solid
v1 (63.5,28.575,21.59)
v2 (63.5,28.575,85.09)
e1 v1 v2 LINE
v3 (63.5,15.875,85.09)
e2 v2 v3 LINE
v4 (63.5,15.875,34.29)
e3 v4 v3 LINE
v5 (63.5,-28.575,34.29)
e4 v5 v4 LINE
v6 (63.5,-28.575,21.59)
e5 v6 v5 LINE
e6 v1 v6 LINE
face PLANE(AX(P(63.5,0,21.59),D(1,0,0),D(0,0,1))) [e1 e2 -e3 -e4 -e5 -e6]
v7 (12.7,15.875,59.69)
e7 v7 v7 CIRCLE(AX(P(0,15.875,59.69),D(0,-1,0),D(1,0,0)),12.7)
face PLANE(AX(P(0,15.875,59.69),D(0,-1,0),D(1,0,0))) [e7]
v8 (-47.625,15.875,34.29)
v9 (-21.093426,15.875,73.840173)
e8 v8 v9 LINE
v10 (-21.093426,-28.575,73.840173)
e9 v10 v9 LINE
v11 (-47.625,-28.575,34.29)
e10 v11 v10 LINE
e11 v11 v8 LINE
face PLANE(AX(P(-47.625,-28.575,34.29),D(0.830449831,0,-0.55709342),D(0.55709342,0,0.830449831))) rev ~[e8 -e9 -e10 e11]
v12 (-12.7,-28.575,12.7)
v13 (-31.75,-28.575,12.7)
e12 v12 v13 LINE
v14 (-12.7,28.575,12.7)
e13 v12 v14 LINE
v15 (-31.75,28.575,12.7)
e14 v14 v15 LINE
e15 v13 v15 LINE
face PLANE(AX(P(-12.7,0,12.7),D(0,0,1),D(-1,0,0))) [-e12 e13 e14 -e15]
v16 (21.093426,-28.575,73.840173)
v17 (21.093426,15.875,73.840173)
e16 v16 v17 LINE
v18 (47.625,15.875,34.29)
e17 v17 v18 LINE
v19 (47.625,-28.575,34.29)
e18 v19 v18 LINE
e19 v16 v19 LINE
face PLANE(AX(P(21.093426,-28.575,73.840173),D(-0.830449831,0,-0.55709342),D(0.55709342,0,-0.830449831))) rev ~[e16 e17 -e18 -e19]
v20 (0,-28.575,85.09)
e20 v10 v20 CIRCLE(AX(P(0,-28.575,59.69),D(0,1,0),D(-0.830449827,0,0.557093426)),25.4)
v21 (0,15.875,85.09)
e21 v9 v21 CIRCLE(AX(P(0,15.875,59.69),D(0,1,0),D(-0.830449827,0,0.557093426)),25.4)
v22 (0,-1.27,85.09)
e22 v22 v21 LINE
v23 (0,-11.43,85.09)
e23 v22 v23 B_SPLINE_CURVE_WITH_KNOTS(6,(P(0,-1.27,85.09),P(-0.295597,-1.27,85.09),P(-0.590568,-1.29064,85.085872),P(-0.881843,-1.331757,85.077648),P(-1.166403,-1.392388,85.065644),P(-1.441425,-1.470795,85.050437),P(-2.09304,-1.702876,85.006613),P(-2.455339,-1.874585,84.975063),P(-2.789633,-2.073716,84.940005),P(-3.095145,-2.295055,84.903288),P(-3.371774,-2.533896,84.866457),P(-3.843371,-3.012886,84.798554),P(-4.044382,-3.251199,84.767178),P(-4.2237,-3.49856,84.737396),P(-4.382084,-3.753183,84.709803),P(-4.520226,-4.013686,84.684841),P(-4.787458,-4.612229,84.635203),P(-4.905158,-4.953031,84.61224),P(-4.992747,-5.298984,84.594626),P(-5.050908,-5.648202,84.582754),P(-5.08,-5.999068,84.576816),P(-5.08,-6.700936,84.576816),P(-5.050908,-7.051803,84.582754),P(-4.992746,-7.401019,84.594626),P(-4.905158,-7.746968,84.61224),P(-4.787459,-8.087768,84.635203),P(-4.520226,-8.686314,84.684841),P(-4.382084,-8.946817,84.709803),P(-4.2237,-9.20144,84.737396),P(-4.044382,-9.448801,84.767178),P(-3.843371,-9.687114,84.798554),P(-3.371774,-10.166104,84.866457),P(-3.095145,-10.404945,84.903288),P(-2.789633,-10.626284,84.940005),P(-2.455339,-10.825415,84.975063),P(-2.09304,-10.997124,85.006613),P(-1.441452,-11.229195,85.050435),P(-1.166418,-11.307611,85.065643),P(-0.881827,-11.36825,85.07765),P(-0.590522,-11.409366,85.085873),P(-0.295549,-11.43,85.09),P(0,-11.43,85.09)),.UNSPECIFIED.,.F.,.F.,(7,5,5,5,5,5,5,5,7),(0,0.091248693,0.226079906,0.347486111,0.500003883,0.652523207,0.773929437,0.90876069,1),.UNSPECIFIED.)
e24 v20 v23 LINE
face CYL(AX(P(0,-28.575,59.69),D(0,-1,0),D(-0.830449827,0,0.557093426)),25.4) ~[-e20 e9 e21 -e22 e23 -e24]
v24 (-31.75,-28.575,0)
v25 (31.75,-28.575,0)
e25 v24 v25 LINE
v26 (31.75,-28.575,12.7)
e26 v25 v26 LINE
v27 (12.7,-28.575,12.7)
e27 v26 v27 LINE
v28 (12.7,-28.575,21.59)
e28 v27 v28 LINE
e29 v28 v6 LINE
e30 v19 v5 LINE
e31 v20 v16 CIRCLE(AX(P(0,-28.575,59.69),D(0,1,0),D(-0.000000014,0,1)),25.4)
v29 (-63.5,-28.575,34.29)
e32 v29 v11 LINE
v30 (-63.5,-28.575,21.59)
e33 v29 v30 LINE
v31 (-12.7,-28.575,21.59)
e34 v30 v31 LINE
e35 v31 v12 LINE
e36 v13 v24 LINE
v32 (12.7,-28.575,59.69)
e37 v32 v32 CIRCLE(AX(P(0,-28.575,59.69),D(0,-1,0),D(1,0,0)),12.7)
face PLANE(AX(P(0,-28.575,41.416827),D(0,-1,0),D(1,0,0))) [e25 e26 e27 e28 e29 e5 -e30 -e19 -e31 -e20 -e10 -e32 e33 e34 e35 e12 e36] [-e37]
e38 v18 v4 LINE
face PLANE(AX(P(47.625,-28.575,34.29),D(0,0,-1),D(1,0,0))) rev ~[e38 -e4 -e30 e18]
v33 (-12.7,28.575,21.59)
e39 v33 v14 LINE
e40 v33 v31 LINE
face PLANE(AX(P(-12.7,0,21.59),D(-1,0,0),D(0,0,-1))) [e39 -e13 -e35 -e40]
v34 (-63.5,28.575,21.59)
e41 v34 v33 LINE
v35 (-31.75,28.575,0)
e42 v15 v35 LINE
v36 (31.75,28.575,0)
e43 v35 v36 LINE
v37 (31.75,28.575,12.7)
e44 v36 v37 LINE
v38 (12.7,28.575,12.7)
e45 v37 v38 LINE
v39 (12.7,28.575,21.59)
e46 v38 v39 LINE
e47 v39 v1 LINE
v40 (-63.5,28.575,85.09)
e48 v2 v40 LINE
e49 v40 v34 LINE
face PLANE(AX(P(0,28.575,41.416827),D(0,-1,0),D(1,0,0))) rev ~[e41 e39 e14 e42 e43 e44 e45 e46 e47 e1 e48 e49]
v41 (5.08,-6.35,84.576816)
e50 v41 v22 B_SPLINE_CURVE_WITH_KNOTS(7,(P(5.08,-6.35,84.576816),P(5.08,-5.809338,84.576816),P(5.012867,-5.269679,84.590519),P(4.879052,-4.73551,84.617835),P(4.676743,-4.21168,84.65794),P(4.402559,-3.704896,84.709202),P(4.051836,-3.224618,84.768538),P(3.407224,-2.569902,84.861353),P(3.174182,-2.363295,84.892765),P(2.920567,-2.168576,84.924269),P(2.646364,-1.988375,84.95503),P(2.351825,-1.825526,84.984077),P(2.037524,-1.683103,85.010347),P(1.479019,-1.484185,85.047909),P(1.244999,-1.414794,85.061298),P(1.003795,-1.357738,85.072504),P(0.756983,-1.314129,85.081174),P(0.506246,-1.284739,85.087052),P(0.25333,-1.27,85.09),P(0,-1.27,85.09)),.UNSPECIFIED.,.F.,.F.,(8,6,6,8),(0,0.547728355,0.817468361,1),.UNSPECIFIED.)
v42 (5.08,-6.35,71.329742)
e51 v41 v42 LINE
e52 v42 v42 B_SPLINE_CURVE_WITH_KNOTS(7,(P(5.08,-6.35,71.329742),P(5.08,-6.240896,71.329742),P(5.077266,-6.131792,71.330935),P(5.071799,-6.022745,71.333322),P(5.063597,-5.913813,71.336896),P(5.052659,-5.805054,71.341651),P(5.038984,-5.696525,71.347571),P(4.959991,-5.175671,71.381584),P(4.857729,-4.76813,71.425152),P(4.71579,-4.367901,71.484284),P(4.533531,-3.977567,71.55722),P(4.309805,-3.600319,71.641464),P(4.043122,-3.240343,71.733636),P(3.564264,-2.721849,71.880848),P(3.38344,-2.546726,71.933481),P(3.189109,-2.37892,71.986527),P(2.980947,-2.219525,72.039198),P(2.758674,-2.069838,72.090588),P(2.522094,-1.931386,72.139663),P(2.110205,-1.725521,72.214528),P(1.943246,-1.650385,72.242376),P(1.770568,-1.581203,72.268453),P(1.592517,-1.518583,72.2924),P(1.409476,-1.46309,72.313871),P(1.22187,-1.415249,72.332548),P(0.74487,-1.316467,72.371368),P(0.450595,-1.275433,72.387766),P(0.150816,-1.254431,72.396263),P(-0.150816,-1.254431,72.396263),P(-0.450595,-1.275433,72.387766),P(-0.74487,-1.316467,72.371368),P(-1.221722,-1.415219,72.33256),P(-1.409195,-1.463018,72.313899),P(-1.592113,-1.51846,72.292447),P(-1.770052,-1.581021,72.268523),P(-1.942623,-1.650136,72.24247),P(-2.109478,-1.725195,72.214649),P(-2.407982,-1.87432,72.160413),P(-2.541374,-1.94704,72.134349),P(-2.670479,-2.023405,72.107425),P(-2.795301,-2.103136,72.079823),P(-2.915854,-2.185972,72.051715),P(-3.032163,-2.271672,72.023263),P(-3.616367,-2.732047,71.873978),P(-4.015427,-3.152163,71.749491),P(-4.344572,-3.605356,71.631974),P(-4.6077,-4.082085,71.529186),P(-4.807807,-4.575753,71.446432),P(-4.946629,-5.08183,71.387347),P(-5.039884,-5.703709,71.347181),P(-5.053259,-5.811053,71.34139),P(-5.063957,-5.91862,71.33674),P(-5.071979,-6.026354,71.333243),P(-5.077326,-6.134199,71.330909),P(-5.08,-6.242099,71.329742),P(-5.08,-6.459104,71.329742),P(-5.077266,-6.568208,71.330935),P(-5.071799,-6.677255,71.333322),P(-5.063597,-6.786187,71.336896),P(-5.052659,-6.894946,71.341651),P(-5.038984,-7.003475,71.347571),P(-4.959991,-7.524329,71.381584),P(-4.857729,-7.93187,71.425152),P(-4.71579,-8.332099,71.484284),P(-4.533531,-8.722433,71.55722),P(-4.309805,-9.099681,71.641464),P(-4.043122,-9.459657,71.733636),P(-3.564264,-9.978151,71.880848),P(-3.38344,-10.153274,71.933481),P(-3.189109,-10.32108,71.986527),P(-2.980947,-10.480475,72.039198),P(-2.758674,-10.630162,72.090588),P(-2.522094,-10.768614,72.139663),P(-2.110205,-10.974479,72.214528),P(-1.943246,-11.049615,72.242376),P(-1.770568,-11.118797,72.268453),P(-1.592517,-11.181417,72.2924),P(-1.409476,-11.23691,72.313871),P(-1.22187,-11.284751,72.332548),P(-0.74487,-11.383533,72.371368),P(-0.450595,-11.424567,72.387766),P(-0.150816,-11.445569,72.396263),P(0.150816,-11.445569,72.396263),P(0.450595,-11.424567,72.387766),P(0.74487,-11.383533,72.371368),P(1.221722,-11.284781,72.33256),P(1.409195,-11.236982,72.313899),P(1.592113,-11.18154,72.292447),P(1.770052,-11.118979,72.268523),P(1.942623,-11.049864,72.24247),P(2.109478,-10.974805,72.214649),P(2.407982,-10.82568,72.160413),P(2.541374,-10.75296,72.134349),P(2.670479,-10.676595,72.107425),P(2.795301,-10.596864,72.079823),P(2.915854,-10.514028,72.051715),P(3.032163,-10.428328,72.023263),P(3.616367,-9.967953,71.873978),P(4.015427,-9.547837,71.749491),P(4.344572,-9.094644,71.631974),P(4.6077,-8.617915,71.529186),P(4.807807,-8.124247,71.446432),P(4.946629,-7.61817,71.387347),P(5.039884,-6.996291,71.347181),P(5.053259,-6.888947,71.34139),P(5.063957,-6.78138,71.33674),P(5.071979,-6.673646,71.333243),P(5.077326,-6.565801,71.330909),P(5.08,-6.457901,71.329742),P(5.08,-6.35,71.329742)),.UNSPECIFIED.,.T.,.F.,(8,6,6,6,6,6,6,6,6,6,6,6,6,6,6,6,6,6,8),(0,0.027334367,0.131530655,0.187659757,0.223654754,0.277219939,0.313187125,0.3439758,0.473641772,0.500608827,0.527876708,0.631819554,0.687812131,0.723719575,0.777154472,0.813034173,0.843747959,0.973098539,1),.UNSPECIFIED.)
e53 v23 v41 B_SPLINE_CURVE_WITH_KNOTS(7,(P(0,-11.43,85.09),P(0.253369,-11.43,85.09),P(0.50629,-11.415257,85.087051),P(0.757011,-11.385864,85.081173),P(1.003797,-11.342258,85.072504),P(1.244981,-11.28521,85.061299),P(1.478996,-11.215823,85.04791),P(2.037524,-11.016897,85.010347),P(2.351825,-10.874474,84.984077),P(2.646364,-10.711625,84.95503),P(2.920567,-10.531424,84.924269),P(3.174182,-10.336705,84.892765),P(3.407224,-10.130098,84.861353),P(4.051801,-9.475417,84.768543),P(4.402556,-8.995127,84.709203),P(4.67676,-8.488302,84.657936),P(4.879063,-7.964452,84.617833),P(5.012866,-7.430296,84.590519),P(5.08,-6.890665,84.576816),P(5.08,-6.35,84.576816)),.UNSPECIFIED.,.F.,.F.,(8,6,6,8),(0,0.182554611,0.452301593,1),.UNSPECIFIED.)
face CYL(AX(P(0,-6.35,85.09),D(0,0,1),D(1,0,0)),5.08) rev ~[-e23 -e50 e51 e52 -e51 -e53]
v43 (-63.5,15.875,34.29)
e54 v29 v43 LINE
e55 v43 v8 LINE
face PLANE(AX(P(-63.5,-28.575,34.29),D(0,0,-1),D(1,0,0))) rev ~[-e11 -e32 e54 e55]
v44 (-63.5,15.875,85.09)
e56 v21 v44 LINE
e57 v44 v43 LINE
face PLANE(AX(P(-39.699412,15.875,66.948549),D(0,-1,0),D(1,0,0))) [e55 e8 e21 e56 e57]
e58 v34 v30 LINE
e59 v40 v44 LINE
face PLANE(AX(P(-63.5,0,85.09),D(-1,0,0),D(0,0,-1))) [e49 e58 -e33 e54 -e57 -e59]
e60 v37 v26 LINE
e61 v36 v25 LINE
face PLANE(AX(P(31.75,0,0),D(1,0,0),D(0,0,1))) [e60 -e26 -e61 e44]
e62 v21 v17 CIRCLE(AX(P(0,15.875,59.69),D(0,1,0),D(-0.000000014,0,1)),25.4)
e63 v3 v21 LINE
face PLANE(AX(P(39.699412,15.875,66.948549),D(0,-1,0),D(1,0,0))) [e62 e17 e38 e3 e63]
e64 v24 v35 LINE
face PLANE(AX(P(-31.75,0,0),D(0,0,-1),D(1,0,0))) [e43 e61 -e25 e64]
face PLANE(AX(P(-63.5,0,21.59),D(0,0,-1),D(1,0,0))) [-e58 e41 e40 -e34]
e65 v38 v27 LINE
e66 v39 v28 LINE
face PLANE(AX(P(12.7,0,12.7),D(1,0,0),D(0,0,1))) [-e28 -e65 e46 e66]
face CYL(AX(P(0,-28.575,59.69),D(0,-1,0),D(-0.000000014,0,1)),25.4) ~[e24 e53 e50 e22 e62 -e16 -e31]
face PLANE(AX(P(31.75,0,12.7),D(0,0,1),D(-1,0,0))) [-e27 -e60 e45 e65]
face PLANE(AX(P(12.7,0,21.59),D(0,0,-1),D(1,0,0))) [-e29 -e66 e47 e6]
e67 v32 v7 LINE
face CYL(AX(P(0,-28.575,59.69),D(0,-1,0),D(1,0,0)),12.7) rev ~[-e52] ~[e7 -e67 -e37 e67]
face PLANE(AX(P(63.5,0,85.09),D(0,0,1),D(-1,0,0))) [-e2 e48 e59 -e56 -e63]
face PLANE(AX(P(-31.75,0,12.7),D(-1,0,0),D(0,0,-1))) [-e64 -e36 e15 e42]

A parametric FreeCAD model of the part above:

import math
import FreeCAD as App
import Part
import Sketcher

V = App.Vector
Q = App.Units.Quantity


def add_polygon(sketch, points):
    """Adds a closed chain of lines whose ends are joined by coincident constraints."""
    first, n = sketch.GeometryCount, len(points)
    for a, b in zip(points, points[1:] + points[:1]):
        sketch.addGeometry(Part.LineSegment(App.Vector(*a, 0), App.Vector(*b, 0)), False)
    for i in range(n):
        sketch.addConstraint(Sketcher.Constraint("Coincident", first + i, 2, first + (i + 1) % n, 1))

doc = App.newDocument("Part")
body = doc.addObject("PartDesign::Body", "Body")

# Sketch on XZ plane
sketch1 = body.newObject("Sketcher::SketchObject", "Sketch")
sketch1.AttachmentSupport = (doc.getObject("XZ_Plane"), [""])
sketch1.MapMode = "FlatFace"
add_polygon(sketch1, [(-32, 0), (32, 0), (32, 13), (13, 13), (13, 22), (64, 22), (64, 85), (-64, 85), (-64, 22), (-13, 22), (-13, 13), (-32, 13)])  # lines 0-11
sketch1.addConstraint([
    Sketcher.Constraint("Horizontal", 0),
    Sketcher.Constraint("Vertical", 1),
    Sketcher.Constraint("Horizontal", 2),
    Sketcher.Constraint("Vertical", 3),
    Sketcher.Constraint("Horizontal", 4),
    Sketcher.Constraint("Vertical", 5),
    Sketcher.Constraint("Horizontal", 6),
    Sketcher.Constraint("Vertical", 7),
    Sketcher.Constraint("Horizontal", 8),
    Sketcher.Constraint("Vertical", 9),
    Sketcher.Constraint("Horizontal", 10),
    Sketcher.Constraint("Vertical", 11),
    Sketcher.Constraint("Symmetric", 0, 2, 11, 2, -1, 1),
    Sketcher.Constraint("Symmetric", 4, 2, 7, 2, -2),
    Sketcher.Constraint("Symmetric", 2, 2, 9, 2, -2),
    Sketcher.Constraint("Equal", 0, 5),
    Sketcher.Constraint("DistanceX", 4, 1, 4, 2, Q("2 in")),
    Sketcher.Constraint("DistanceX", 6, 2, 6, 1, Q("5 in")),
    Sketcher.Constraint("DistanceX", 0, 1, 0, 2, Q("2.5 in")),
    Sketcher.Constraint("DistanceY", 1, 1, 1, 2, Q("0.5 in")),
    Sketcher.Constraint("DistanceY", 3, 1, 3, 2, Q("0.35 in")),
])
pad1 = body.newObject("PartDesign::Pad", "Pad")
pad1.Profile = sketch1
pad1.Length = Q("2.25 in")
pad1.Midplane = True

# Sketch on XZ plane
sketch2 = body.newObject("Sketcher::SketchObject", "Sketch001")
sketch2.AttachmentSupport = (doc.getObject("XZ_Plane"), [""])
sketch2.MapMode = "FlatFace"
sketch2.AttachmentOffset = App.Placement(V(0, 0, 1.125 * 25.4), App.Rotation())
sketch2.addGeometry([
    Part.LineSegment(V(-64, 85, 0), V(-64, 34, 0)),  # 0
    Part.LineSegment(V(-64, 34, 0), V(-48, 34, 0)),  # 1
    Part.LineSegment(V(-48, 34, 0), V(-21, 74, 0)),  # 2
    Part.ArcOfCircle(Part.Circle(V(0, 60, 0), V(0, 0, 1), 25), math.radians(90), math.radians(146)),  # 3
    Part.LineSegment(V(0, 85, 0), V(-64, 85, 0)),  # 4
    Part.LineSegment(V(48, 34, 0), V(64, 34, 0)),  # 5
    Part.LineSegment(V(64, 34, 0), V(64, 85, 0)),  # 6
    Part.LineSegment(V(64, 85, 0), V(0, 85, 0)),  # 7
    Part.ArcOfCircle(Part.Circle(V(0, 60, 0), V(0, 0, 1), 25), math.radians(34), math.radians(90)),  # 8
    Part.LineSegment(V(21, 74, 0), V(48, 34, 0)),  # 9
], False)
sketch2.addConstraint([
    Sketcher.Constraint("Coincident", 0, 2, 1, 1),
    Sketcher.Constraint("Coincident", 1, 2, 2, 1),
    Sketcher.Constraint("Tangent", 2, 2, 3, 2),
    Sketcher.Constraint("Tangent", 3, 1, 4, 1),
    Sketcher.Constraint("Coincident", 4, 2, 0, 1),
    Sketcher.Constraint("Coincident", 5, 2, 6, 1),
    Sketcher.Constraint("Coincident", 6, 2, 7, 1),
    Sketcher.Constraint("Tangent", 7, 2, 8, 2),
    Sketcher.Constraint("Tangent", 8, 1, 9, 1),
    Sketcher.Constraint("Coincident", 9, 2, 5, 1),
    Sketcher.Constraint("Vertical", 0),
    Sketcher.Constraint("Horizontal", 1),
    Sketcher.Constraint("Horizontal", 4),
    Sketcher.Constraint("Horizontal", 5),
    Sketcher.Constraint("Vertical", 6),
    Sketcher.Constraint("Horizontal", 7),
    Sketcher.Constraint("Coincident", 8, 3, 3, 3),
    Sketcher.Constraint("Equal", 3, 8),
    Sketcher.Constraint("Symmetric", 0, 2, 5, 2, -2),
    Sketcher.Constraint("Symmetric", 2, 2, 8, 1, -2),
    Sketcher.Constraint("Radius", 3, Q("1 in")),
    Sketcher.Constraint("DistanceY", 0, 2, 0, 1, Q("2 in")),
    Sketcher.Constraint("DistanceX", 4, 2, 4, 1, Q("2.5 in")),
    Sketcher.Constraint("DistanceX", 1, 1, 1, 2, Q("0.625 in")),
    Sketcher.Constraint("DistanceY", -1, 1, 3, 3, Q("2.35 in")),
])
pocket1 = body.newObject("PartDesign::Pocket", "Pocket")
pocket1.Profile = sketch2
pocket1.Length = Q("1.75 in")

# Sketch on XZ plane
sketch3 = body.newObject("Sketcher::SketchObject", "Sketch002")
sketch3.AttachmentSupport = (doc.getObject("XZ_Plane"), [""])
sketch3.MapMode = "FlatFace"
sketch3.AttachmentOffset = App.Placement(V(0, 0, 1.125 * 25.4), App.Rotation())
sketch3.addGeometry(Part.Circle(V(0, 60, 0), V(0, 0, 1), 13), False)
sketch3.addConstraint([
    Sketcher.Constraint("PointOnObject", 0, 3, -2),
    Sketcher.Constraint("Diameter", 0, Q("1 in")),
    Sketcher.Constraint("DistanceY", -1, 1, 0, 3, Q("2.35 in")),
])
pocket2 = body.newObject("PartDesign::Pocket", "Pocket001")
pocket2.Profile = sketch3
pocket2.Length = Q("1.75 in")

# Sketch on XY plane
sketch4 = body.newObject("Sketcher::SketchObject", "Sketch003")
sketch4.AttachmentSupport = (doc.getObject("XY_Plane"), [""])
sketch4.MapMode = "FlatFace"
sketch4.AttachmentOffset = App.Placement(V(0, 0, 3.35 * 25.4), App.Rotation())
sketch4.addGeometry(Part.Circle(V(0, -6, 0), V(0, 0, 1), 5), False)
sketch4.addConstraint([
    Sketcher.Constraint("PointOnObject", 0, 3, -2),
    Sketcher.Constraint("Diameter", 0, Q("0.4 in")),
    Sketcher.Constraint("DistanceY", 0, 3, -1, 1, Q("0.25 in")),
])
pocket3 = body.newObject("PartDesign::Pocket", "Pocket002")
pocket3.Profile = sketch4
pocket3.Length = Q("1 in")

doc.recompute()
